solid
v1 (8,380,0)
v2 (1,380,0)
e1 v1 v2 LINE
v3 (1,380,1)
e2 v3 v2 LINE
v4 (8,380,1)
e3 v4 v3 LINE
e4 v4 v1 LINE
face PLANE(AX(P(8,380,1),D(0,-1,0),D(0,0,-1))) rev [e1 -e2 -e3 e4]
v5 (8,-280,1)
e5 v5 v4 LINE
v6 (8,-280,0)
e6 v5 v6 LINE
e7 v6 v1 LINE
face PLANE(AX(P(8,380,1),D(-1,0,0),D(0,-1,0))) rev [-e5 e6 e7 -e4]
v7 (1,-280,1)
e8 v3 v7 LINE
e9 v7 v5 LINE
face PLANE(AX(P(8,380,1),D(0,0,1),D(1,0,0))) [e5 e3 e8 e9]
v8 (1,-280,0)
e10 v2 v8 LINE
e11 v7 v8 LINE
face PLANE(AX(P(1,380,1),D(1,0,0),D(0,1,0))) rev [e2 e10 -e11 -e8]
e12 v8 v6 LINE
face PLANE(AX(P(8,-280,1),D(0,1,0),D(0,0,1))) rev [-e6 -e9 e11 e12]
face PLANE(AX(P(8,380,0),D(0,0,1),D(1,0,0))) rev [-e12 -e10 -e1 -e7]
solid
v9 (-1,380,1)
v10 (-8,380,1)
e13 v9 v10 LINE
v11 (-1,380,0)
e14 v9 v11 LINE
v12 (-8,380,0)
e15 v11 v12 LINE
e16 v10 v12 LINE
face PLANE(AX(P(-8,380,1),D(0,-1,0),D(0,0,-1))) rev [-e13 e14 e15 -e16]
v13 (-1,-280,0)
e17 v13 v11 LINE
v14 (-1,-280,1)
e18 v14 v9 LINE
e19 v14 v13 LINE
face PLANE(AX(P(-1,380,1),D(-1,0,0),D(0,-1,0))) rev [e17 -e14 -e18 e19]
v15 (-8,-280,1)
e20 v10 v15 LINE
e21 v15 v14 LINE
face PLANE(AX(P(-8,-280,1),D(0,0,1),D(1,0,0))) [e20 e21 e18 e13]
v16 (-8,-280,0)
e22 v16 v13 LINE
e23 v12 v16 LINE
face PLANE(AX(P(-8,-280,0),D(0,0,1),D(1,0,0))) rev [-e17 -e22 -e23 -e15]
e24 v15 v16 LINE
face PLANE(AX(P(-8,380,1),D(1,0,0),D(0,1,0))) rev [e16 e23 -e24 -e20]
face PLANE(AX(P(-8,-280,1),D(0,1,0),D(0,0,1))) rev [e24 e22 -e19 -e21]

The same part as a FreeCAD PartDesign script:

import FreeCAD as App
import Part
import Sketcher
Q = App.Units.Quantity

doc = App.newDocument("Part")
body = doc.addObject("PartDesign::Body", "Body")

# Sketch on XY plane
sketch1 = body.newObject("Sketcher::SketchObject", "Sketch")
sketch1.AttachmentSupport = (doc.getObject("XY_Plane"), [""])
sketch1.MapMode = "FlatFace"
sketch1.addGeometry(Part.LineSegment(App.Vector(1, 380, 0), App.Vector(1, -280, 0)), False)
sketch1.addGeometry(Part.LineSegment(App.Vector(1, -280, 0), App.Vector(8, -280, 0)), False)
sketch1.addGeometry(Part.LineSegment(App.Vector(8, -280, 0), App.Vector(8, 380, 0)), False)
sketch1.addGeometry(Part.LineSegment(App.Vector(8, 380, 0), App.Vector(1, 380, 0)), False)
sketch1.addConstraint(Sketcher.Constraint("Coincident", 0, 2, 1, 1))
sketch1.addConstraint(Sketcher.Constraint("Coincident", 1, 2, 2, 1))
sketch1.addConstraint(Sketcher.Constraint("Coincident", 2, 2, 3, 1))
sketch1.addConstraint(Sketcher.Constraint("Coincident", 3, 2, 0, 1))
sketch1.addConstraint(Sketcher.Constraint("Vertical", 0))
sketch1.addConstraint(Sketcher.Constraint("Horizontal", 1))
sketch1.addConstraint(Sketcher.Constraint("Vertical", 2))
sketch1.addConstraint(Sketcher.Constraint("Horizontal", 3))
sketch1.addConstraint(Sketcher.Constraint("DistanceX", 1, 1, 1, 2, Q("7 mm")))
sketch1.addConstraint(Sketcher.Constraint("DistanceY", 0, 2, 0, 1, Q("660 mm")))
sketch1.addConstraint(Sketcher.Constraint("DistanceX", -1, 1, 0, 2, Q("1 mm")))
sketch1.addConstraint(Sketcher.Constraint("DistanceY", 0, 2, -1, 1, Q("280 mm")))
pad1 = body.newObject("PartDesign::Pad", "Pad")
pad1.Profile = sketch1
pad1.Length = 1
body2 = doc.addObject("PartDesign::Body", "Body001")

# Sketch on XY plane
sketch2 = body2.newObject("Sketcher::SketchObject", "Sketch001")
sketch2.AttachmentSupport = (doc.getObject("XY_Plane001"), [""])
sketch2.MapMode = "FlatFace"
sketch2.addGeometry(Part.LineSegment(App.Vector(-8, 380, 0), App.Vector(-8, -280, 0)), False)
sketch2.addGeometry(Part.LineSegment(App.Vector(-8, -280, 0), App.Vector(-1, -280, 0)), False)
sketch2.addGeometry(Part.LineSegment(App.Vector(-1, -280, 0), App.Vector(-1, 380, 0)), False)
sketch2.addGeometry(Part.LineSegment(App.Vector(-1, 380, 0), App.Vector(-8, 380, 0)), False)
sketch2.addConstraint(Sketcher.Constraint("Coincident", 0, 2, 1, 1))
sketch2.addConstraint(Sketcher.Constraint("Coincident", 1, 2, 2, 1))
sketch2.addConstraint(Sketcher.Constraint("Coincident", 2, 2, 3, 1))
sketch2.addConstraint(Sketcher.Constraint("Coincident", 3, 2, 0, 1))
sketch2.addConstraint(Sketcher.Constraint("Vertical", 0))
sketch2.addConstraint(Sketcher.Constraint("Horizontal", 1))
sketch2.addConstraint(Sketcher.Constraint("Vertical", 2))
sketch2.addConstraint(Sketcher.Constraint("Horizontal", 3))
sketch2.addConstraint(Sketcher.Constraint("DistanceX", 1, 1, 1, 2, Q("7 mm")))
sketch2.addConstraint(Sketcher.Constraint("DistanceY", 0, 2, 0, 1, Q("660 mm")))
sketch2.addConstraint(Sketcher.Constraint("DistanceX", 0, 2, -1, 1, Q("8 mm")))
sketch2.addConstraint(Sketcher.Constraint("DistanceY", 0, 2, -1, 1, Q("280 mm")))
pad2 = body2.newObject("PartDesign::Pad", "Pad001")
pad2.Profile = sketch2
pad2.Length = 1

doc.recompute()
